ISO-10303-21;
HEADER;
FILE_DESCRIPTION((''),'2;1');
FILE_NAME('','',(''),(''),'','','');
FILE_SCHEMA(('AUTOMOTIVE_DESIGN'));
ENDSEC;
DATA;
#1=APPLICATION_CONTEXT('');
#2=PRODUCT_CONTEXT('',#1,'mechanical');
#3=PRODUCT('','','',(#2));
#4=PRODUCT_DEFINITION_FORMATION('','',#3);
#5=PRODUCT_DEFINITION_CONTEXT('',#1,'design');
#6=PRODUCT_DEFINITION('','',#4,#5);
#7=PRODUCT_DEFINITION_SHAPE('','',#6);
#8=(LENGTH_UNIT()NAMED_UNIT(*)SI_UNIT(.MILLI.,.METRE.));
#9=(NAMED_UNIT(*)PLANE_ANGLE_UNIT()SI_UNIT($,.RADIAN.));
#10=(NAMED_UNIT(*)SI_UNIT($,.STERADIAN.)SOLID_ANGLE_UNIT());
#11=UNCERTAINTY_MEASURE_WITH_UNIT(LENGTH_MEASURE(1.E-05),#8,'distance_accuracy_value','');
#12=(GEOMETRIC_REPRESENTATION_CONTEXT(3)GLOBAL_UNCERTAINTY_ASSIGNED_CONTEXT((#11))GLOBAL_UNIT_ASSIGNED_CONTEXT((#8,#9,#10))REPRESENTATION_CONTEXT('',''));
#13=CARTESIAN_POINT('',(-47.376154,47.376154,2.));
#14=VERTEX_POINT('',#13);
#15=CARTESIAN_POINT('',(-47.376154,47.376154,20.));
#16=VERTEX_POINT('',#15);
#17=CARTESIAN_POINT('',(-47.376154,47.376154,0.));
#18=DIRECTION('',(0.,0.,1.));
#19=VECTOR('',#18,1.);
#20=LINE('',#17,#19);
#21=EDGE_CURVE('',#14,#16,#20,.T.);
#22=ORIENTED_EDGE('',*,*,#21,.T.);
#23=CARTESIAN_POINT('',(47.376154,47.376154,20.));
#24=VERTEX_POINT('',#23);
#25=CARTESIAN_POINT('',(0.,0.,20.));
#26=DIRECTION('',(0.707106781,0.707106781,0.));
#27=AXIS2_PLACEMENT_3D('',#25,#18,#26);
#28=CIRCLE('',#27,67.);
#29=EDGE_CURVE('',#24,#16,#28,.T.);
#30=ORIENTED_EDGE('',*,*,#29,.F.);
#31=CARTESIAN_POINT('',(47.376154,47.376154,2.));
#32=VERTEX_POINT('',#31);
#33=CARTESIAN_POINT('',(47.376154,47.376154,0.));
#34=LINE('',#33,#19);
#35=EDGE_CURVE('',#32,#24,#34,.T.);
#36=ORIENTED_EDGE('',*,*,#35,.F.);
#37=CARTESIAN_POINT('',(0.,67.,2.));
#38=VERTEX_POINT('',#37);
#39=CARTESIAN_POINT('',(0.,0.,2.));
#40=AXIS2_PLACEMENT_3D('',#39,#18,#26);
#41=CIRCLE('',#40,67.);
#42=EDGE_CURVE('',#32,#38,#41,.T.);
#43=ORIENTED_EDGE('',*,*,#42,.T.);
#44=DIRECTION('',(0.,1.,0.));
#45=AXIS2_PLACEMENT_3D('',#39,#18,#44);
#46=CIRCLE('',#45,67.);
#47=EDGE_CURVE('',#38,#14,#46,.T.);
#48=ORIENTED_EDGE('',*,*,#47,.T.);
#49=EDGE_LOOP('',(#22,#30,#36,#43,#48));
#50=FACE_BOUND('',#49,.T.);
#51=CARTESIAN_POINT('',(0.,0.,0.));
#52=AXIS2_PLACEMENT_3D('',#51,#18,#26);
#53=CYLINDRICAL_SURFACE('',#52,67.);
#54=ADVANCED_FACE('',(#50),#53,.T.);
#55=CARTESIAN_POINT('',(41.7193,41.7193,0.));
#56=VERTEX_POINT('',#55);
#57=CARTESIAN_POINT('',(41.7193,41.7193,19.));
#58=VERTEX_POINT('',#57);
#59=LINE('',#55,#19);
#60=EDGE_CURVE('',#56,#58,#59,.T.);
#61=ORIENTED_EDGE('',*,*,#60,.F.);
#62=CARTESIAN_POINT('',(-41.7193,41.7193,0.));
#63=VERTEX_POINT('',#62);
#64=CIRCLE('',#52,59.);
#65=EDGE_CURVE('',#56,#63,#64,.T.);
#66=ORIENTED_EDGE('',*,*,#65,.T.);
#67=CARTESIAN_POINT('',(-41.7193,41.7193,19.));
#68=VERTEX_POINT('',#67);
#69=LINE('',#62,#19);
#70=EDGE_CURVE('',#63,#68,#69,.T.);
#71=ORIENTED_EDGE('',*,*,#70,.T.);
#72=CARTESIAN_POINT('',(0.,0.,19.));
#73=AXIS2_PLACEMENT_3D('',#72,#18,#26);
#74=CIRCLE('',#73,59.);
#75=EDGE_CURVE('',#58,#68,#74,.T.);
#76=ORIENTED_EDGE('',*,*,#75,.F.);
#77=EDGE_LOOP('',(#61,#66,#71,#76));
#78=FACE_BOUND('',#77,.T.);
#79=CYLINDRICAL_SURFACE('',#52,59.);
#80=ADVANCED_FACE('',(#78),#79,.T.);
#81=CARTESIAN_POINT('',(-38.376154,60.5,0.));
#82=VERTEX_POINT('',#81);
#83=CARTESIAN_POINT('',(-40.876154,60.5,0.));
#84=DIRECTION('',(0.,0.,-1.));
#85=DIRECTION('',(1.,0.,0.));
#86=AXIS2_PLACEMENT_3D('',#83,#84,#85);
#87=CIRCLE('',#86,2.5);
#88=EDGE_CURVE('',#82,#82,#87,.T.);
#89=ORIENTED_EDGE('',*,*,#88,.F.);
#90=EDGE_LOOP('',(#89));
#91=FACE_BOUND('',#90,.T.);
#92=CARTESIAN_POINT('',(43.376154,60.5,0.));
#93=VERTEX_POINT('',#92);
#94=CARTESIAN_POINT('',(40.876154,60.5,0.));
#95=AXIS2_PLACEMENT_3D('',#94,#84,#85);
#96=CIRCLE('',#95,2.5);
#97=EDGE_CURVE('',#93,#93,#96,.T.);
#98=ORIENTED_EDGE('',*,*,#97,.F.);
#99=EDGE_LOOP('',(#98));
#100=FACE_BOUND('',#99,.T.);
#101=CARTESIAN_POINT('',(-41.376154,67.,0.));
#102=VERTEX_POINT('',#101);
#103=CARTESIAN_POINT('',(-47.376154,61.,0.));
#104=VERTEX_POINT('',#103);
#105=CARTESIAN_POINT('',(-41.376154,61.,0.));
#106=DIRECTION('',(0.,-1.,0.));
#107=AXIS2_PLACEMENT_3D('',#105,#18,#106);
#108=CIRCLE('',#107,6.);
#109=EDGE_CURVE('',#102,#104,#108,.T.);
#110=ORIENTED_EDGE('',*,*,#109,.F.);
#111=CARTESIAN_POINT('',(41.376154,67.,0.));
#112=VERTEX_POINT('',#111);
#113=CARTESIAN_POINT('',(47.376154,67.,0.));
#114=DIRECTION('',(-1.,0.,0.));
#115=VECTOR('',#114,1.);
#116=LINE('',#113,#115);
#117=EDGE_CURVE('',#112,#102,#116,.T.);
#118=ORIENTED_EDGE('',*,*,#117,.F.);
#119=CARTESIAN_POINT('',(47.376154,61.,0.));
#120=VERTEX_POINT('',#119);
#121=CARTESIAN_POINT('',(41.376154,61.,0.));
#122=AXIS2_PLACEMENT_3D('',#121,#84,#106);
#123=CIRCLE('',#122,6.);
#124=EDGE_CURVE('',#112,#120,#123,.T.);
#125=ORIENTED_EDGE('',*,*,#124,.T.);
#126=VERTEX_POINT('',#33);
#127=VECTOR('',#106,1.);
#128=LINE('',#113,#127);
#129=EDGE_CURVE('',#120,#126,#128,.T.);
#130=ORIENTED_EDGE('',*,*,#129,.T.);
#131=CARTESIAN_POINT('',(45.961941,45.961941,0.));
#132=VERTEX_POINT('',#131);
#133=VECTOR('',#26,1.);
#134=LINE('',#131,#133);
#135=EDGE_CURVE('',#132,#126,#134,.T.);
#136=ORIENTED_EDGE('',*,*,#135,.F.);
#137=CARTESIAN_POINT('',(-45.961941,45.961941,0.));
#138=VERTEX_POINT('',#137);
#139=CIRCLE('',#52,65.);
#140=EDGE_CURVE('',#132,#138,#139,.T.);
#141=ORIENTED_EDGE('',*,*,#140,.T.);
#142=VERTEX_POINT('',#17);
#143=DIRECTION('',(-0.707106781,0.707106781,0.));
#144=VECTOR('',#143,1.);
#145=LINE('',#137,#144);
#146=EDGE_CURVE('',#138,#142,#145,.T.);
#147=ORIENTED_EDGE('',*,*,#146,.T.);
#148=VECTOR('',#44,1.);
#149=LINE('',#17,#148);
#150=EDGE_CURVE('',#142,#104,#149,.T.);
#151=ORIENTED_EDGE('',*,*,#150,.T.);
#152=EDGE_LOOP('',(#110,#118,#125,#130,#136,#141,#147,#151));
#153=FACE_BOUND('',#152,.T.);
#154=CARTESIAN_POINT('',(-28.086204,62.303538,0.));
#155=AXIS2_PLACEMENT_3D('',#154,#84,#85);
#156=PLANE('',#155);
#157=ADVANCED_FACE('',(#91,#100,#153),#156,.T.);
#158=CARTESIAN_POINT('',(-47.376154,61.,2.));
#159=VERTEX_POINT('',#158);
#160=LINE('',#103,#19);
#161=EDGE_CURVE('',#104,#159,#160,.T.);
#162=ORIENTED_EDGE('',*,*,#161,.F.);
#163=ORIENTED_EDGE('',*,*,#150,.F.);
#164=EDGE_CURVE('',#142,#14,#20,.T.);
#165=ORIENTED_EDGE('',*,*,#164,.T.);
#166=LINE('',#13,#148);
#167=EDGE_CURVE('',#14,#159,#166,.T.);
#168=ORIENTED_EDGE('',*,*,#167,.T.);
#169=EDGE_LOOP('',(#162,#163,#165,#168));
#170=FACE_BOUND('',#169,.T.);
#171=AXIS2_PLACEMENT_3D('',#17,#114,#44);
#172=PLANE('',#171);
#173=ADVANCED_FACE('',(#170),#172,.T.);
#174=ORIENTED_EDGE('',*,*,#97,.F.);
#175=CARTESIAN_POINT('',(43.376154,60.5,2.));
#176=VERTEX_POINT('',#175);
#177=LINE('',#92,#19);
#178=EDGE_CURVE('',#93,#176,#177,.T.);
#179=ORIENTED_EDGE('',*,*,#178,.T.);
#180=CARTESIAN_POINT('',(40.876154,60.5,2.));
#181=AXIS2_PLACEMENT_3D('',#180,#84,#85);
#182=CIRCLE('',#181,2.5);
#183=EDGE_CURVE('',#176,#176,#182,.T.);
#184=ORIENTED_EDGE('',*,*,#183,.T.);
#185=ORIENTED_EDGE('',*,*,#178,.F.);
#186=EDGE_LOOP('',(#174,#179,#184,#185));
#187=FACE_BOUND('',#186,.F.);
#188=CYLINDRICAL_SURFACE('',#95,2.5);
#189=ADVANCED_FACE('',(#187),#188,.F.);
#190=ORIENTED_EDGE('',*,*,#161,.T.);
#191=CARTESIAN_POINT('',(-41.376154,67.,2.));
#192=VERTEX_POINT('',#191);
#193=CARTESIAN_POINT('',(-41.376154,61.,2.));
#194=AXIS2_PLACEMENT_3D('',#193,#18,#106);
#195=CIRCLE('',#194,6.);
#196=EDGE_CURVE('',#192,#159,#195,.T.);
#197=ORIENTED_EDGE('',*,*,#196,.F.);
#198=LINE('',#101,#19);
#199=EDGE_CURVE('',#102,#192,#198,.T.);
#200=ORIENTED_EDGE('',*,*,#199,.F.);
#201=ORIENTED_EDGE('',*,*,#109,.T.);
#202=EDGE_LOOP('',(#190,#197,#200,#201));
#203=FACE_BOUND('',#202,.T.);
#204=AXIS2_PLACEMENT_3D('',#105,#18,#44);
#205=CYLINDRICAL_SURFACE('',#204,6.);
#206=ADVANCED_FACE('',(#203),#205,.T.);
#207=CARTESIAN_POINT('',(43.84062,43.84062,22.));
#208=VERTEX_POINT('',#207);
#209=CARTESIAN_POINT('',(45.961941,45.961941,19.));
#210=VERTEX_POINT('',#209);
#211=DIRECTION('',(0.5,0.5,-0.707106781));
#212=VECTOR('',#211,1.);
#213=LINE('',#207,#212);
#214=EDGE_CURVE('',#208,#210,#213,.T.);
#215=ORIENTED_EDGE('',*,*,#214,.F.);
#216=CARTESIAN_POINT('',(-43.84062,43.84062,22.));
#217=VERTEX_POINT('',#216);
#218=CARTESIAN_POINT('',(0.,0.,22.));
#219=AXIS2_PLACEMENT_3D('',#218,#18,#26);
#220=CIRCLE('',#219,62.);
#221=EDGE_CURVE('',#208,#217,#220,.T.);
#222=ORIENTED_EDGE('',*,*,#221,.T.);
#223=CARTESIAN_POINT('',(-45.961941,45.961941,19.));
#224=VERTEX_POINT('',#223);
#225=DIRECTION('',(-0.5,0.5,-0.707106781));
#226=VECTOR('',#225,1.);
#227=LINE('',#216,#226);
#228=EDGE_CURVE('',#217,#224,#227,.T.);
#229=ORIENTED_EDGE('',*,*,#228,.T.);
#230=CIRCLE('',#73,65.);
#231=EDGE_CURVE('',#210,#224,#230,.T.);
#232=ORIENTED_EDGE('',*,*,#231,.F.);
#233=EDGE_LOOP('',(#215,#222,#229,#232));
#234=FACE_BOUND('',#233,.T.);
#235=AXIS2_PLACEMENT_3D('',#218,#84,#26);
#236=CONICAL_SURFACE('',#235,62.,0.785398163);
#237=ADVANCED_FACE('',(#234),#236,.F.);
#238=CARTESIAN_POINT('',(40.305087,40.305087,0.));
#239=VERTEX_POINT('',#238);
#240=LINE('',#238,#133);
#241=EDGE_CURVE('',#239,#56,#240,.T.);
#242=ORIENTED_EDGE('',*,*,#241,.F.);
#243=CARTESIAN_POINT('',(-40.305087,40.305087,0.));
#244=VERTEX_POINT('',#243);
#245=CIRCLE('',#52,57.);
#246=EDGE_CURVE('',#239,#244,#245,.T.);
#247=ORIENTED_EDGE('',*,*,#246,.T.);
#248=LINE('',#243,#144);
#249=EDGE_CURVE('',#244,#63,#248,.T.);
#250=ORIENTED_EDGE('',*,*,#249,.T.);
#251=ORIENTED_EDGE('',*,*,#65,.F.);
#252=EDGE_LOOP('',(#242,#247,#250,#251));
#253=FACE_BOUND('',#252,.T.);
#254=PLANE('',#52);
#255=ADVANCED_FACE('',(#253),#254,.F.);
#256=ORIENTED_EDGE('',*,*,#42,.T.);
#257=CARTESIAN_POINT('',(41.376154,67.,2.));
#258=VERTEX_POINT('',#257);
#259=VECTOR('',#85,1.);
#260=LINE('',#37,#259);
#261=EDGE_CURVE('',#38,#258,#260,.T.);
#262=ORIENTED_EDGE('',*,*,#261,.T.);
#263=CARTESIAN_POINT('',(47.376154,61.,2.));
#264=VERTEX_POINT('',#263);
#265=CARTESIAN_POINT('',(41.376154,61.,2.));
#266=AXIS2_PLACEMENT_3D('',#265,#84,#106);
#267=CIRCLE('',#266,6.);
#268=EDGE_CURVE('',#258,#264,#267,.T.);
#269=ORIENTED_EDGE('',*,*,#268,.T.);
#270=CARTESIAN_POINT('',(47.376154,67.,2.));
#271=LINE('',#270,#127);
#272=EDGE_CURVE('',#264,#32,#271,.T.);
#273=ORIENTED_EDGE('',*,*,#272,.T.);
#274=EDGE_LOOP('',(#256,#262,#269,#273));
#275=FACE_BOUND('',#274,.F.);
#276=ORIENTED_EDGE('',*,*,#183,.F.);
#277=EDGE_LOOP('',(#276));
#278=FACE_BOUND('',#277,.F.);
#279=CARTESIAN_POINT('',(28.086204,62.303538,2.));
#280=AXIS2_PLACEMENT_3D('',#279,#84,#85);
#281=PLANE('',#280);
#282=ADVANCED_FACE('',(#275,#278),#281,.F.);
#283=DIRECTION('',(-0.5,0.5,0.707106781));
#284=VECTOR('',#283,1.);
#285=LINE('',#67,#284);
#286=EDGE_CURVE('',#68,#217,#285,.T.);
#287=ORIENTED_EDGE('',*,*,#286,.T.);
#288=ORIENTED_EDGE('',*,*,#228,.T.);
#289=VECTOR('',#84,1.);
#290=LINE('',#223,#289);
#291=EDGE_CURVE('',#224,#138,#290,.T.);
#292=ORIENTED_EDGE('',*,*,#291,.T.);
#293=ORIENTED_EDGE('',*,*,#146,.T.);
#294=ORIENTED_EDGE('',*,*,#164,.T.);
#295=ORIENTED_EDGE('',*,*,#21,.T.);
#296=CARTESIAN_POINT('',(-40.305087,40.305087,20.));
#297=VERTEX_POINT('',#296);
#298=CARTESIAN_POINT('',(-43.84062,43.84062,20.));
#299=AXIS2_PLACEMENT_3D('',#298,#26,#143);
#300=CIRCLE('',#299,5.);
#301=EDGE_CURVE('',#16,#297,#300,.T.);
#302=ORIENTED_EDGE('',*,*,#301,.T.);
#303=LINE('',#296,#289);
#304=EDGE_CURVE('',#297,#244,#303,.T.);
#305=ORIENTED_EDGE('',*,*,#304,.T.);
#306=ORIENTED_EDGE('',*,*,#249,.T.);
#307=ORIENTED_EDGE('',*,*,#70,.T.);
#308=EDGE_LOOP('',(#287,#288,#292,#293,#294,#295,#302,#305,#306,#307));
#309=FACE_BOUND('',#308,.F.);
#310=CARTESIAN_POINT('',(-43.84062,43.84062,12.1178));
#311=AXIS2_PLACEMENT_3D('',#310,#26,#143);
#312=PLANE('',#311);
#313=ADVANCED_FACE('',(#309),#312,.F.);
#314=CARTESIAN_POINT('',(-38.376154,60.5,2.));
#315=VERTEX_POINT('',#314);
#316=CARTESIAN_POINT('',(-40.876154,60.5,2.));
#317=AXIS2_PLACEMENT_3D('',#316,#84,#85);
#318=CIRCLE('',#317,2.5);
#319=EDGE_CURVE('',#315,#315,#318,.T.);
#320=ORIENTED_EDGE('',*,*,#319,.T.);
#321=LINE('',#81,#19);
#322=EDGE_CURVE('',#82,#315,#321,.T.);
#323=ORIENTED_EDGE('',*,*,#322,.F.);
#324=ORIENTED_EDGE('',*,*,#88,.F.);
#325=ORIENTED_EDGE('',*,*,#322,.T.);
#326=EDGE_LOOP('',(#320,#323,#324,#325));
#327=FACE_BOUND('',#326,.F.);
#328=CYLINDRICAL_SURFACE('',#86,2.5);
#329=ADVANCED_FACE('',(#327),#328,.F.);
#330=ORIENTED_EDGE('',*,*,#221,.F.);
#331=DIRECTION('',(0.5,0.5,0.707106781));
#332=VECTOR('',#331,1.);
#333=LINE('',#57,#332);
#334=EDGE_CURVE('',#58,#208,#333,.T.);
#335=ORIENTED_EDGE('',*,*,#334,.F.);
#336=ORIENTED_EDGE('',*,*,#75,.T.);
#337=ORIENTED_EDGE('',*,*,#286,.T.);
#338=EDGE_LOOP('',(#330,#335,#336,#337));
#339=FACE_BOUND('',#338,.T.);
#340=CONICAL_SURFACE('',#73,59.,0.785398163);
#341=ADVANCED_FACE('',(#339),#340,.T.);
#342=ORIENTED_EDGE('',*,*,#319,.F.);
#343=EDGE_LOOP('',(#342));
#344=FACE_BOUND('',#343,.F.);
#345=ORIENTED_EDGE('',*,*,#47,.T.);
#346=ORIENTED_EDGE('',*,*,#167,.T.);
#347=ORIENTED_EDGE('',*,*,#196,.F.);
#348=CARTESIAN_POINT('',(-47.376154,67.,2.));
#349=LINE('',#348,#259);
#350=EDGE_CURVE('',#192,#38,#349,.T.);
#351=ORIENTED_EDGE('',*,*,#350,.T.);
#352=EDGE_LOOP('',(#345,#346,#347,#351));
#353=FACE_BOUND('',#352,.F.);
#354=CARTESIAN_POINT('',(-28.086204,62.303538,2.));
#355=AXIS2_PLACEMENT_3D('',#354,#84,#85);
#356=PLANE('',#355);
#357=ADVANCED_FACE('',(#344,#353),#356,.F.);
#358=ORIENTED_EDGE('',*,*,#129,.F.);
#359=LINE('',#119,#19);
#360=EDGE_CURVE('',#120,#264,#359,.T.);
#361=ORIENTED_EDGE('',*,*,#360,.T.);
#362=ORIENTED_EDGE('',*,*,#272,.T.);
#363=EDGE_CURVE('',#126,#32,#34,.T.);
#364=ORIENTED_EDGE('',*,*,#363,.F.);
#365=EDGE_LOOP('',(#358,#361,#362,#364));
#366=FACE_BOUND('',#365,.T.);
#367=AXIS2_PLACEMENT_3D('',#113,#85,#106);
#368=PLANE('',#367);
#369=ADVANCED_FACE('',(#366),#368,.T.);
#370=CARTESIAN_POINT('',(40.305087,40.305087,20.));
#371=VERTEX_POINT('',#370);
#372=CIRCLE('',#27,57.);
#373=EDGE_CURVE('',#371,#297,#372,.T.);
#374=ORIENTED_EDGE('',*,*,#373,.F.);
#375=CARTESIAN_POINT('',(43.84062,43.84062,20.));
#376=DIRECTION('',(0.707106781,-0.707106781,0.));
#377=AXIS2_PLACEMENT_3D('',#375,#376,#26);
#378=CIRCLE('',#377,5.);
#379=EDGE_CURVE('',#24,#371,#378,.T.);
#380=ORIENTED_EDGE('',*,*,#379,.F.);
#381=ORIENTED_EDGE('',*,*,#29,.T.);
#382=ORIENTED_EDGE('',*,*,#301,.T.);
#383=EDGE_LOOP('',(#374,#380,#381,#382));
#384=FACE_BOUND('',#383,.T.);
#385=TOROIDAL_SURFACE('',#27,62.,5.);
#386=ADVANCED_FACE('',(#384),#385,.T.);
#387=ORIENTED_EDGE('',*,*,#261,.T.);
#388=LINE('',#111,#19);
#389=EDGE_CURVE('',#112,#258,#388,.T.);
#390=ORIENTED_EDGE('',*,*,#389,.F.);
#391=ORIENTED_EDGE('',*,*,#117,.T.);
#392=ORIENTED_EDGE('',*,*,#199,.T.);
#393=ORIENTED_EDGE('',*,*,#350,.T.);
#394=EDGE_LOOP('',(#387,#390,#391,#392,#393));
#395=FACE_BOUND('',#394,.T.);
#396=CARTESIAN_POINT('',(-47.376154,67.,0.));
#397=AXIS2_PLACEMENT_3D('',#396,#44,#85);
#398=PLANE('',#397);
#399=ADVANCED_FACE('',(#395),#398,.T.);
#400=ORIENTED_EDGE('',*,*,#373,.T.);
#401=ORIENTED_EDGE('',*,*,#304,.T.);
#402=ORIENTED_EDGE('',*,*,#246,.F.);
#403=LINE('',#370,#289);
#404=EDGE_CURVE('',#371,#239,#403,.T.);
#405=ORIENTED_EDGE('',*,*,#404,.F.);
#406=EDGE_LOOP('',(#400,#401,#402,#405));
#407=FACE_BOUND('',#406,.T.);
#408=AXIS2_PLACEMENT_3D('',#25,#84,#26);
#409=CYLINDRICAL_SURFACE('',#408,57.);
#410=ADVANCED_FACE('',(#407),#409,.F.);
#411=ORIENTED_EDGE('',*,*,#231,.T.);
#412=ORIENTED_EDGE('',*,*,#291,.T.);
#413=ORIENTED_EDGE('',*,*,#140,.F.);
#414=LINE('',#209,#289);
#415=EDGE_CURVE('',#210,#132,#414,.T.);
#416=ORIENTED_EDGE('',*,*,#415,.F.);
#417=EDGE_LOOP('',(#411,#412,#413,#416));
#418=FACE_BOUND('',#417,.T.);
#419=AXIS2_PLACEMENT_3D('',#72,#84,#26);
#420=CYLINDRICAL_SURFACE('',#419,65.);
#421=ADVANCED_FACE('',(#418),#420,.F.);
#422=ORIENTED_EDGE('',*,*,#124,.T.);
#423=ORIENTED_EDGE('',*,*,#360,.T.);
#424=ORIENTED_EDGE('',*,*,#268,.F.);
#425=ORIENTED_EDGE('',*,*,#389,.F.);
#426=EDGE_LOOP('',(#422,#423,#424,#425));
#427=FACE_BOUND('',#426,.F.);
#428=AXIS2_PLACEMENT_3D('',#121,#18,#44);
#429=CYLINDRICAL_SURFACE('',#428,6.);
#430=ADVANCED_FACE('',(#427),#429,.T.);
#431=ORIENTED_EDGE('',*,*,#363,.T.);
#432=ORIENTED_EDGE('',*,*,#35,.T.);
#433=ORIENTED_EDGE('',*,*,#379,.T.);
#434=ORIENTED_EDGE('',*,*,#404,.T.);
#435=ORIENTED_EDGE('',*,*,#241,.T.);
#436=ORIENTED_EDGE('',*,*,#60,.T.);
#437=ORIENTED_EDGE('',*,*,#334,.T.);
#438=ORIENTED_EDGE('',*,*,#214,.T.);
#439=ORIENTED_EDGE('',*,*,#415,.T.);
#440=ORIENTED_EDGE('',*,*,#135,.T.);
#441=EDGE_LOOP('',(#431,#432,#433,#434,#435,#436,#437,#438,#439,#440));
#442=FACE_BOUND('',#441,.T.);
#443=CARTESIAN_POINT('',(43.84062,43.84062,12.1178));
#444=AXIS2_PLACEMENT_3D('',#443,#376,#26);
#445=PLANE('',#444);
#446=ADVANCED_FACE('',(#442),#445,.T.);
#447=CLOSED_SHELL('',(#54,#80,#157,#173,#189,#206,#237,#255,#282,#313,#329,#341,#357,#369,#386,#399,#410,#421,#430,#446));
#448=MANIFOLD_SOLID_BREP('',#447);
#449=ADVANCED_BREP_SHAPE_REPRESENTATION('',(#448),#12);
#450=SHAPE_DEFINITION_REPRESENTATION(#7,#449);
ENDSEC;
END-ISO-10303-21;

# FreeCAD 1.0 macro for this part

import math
import FreeCAD as App
import Part
import Sketcher
from FreeCAD import Vector


def edges_at(feature, points):
    """Names of the edges that pass closest to the given points."""
    edges = feature.Shape.Edges
    near = lambda p: min(range(len(edges)), key=lambda i: edges[i].distToShape(Part.Vertex(*p))[0])
    return sorted({f"Edge{near(p) + 1}" for p in points})

doc = App.newDocument("Part")
params = doc.addObject("Spreadsheet::Sheet", "Params")
for row, (alias, value) in enumerate([
    ("sketch1_radius", "5 mm"),
    ("sketch1_width", "2 mm"),
    ("sketch1_height", "19 mm"),
    ("sketch1_height2", "20 mm"),
    ("revolution_angle", "90 deg"),
    ("sketch2_diameter", "5 mm"),
    ("sketch2_radius", "67 mm"),
    ("pad1_length", "2 mm"),
    ("fillet_radius", "6 mm"),
], start=1):
    params.set(f"A{row}", alias)
    params.set(f"B{row}", "=" + value)
    params.setAlias(f"B{row}", alias)

body = doc.addObject("PartDesign::Body", "Body")

sketch1 = doc.addObject("Sketcher::SketchObject", "Sketch")
body.addObject(sketch1)
sketch1.Placement = App.Placement(Vector(0, 0, 0), App.Rotation(Vector(0.707106781, 0.707106781, 0), Vector(0, 0, 0.999999999), Vector(0.707106781, -0.707106781, 0), "ZXY"))
sketch1.addGeometry([
    Part.LineSegment(Vector(65, 19, 0), Vector(65, 0, 0)),
    Part.LineSegment(Vector(65, 0, 0), Vector(67, 0, 0)),
    Part.LineSegment(Vector(67, 0, 0), Vector(67, 20, 0)),
    Part.ArcOfCircle(Part.Circle(Vector(62, 20, 0), Vector(0, 0, 1), 5), math.radians(0), math.radians(180)),
    Part.LineSegment(Vector(57, 20, 0), Vector(57, 0, 0)),
    Part.LineSegment(Vector(57, 0, 0), Vector(59, 0, 0)),
    Part.LineSegment(Vector(59, 0, 0), Vector(59, 19, 0)),
    Part.LineSegment(Vector(59, 19, 0), Vector(62, 22, 0)),
    Part.LineSegment(Vector(62, 22, 0), Vector(65, 19, 0)),
], False)
sketch1.addConstraint([
    Sketcher.Constraint("Coincident", 0, 2, 1, 1),
    Sketcher.Constraint("Coincident", 1, 2, 2, 1),
    Sketcher.Constraint("Tangent", 2, 2, 3, 1),
    Sketcher.Constraint("Tangent", 3, 2, 4, 1),
    Sketcher.Constraint("Coincident", 4, 2, 5, 1),
    Sketcher.Constraint("Coincident", 5, 2, 6, 1),
    Sketcher.Constraint("Coincident", 6, 2, 7, 1),
    Sketcher.Constraint("Coincident", 7, 2, 8, 1),
    Sketcher.Constraint("Coincident", 8, 2, 0, 1),
    Sketcher.Constraint("Vertical", 0),
    Sketcher.Constraint("Horizontal", 1),
    Sketcher.Constraint("Vertical", 2),
    Sketcher.Constraint("Vertical", 4),
    Sketcher.Constraint("Horizontal", 5),
    Sketcher.Constraint("Vertical", 6),
    Sketcher.Constraint("PointOnObject", 0, 2, -1),
    Sketcher.Constraint("PointOnObject", 4, 2, -1),
    Sketcher.Constraint("Perpendicular", 7, 8),
    Sketcher.Constraint("Horizontal", 6, 2, 8, 2),
    Sketcher.Constraint("Vertical", 3, 3, 7, 2),
    Sketcher.Constraint("Equal", 1, 5),
    Sketcher.Constraint("Radius", 3, 5.0),
    Sketcher.Constraint("DistanceX", 1, 1, 1, 2, 2.0),
    Sketcher.Constraint("DistanceY", 0, 2, 0, 1, 19.0),
    Sketcher.Constraint("DistanceY", 2, 1, 2, 2, 20.0),
    Sketcher.Constraint("DistanceX", -1, 1, 3, 3, 62.0),
])
sketch1.setExpression("Constraints[21]", "Params.sketch1_radius")
sketch1.setExpression("Constraints[22]", "Params.sketch1_width")
sketch1.setExpression("Constraints[23]", "Params.sketch1_height")
sketch1.setExpression("Constraints[24]", "Params.sketch1_height2")
revolution = doc.addObject("PartDesign::Revolution", "Revolution")
body.addObject(revolution)
revolution.Profile = sketch1
revolution.ReferenceAxis = (sketch1, ["V_Axis"])
revolution.setExpression("Angle", "Params.revolution_angle")

sketch2 = doc.addObject("Sketcher::SketchObject", "Sketch001")
body.addObject(sketch2)
sketch2.AttachmentSupport = (doc.XY_Plane, [""])
sketch2.MapMode = "FlatFace"
sketch2.addGeometry([
    Part.ArcOfCircle(Part.Circle(Vector(0, 0, 0), Vector(0, 0, 1), 67), math.radians(90), math.radians(135)),
    Part.LineSegment(Vector(-47.376154, 47.376154, 0), Vector(-47.376154, 67, 0)),
    Part.LineSegment(Vector(-47.376154, 67, 0), Vector(0, 67, 0)),
    Part.Circle(Vector(-40.876154, 60.5, 0), Vector(0, 0, 1), 2.5),
    Part.ArcOfCircle(Part.Circle(Vector(0, 0, 0), Vector(0, 0, 1), 67), math.radians(45), math.radians(90)),
    Part.LineSegment(Vector(0, 67, 0), Vector(47.376154, 67, 0)),
    Part.LineSegment(Vector(47.376154, 67, 0), Vector(47.376154, 47.376154, 0)),
    Part.Circle(Vector(40.876154, 60.5, 0), Vector(0, 0, 1), 2.5),
], False)
sketch2.addConstraint([
    Sketcher.Constraint("Coincident", 0, 2, 1, 1),
    Sketcher.Constraint("Coincident", 1, 2, 2, 1),
    Sketcher.Constraint("Tangent", 2, 2, 0, 1),
    Sketcher.Constraint("Tangent", 4, 2, 5, 1),
    Sketcher.Constraint("Coincident", 5, 2, 6, 1),
    Sketcher.Constraint("Coincident", 6, 2, 4, 1),
    Sketcher.Constraint("Vertical", 1),
    Sketcher.Constraint("Horizontal", 2),
    Sketcher.Constraint("Horizontal", 5),
    Sketcher.Constraint("Vertical", 6),
    Sketcher.Constraint("Coincident", 0, 3, -1, 1),
    Sketcher.Constraint("Coincident", 4, 3, -1, 1),
    Sketcher.Constraint("Equal", 0, 4),
    Sketcher.Constraint("Equal", 3, 7),
    Sketcher.Constraint("Symmetric", 3, 3, 7, 3, -2),
    Sketcher.Constraint("Horizontal", 0, 2, 6, 2),
    Sketcher.Constraint("Diameter", 3, 5.0),
    Sketcher.Constraint("Radius", 0, 67.0),
    Sketcher.Constraint("DistanceY", -1, 1, 3, 3, 60.5),
    Sketcher.Constraint("DistanceX", 0, 2, 3, 3, 6.5),
    Sketcher.Constraint("DistanceX", 2, 1, 2, 2, 47.376154),
])
sketch2.setExpression("Constraints[16]", "Params.sketch2_diameter")
sketch2.setExpression("Constraints[17]", "Params.sketch2_radius")
pad1 = doc.addObject("PartDesign::Pad", "Pad")
body.addObject(pad1)
pad1.Profile = sketch2
pad1.setExpression("Length", "Params.pad1_length")
doc.recompute()

fillet = doc.addObject("PartDesign::Fillet", "Fillet")
body.addObject(fillet)
fillet.Base = (pad1, edges_at(pad1, [(-47.376, 67, 1), (47.376, 67, 1)]))
fillet.setExpression("Radius", "Params.fillet_radius")

doc.recompute()
